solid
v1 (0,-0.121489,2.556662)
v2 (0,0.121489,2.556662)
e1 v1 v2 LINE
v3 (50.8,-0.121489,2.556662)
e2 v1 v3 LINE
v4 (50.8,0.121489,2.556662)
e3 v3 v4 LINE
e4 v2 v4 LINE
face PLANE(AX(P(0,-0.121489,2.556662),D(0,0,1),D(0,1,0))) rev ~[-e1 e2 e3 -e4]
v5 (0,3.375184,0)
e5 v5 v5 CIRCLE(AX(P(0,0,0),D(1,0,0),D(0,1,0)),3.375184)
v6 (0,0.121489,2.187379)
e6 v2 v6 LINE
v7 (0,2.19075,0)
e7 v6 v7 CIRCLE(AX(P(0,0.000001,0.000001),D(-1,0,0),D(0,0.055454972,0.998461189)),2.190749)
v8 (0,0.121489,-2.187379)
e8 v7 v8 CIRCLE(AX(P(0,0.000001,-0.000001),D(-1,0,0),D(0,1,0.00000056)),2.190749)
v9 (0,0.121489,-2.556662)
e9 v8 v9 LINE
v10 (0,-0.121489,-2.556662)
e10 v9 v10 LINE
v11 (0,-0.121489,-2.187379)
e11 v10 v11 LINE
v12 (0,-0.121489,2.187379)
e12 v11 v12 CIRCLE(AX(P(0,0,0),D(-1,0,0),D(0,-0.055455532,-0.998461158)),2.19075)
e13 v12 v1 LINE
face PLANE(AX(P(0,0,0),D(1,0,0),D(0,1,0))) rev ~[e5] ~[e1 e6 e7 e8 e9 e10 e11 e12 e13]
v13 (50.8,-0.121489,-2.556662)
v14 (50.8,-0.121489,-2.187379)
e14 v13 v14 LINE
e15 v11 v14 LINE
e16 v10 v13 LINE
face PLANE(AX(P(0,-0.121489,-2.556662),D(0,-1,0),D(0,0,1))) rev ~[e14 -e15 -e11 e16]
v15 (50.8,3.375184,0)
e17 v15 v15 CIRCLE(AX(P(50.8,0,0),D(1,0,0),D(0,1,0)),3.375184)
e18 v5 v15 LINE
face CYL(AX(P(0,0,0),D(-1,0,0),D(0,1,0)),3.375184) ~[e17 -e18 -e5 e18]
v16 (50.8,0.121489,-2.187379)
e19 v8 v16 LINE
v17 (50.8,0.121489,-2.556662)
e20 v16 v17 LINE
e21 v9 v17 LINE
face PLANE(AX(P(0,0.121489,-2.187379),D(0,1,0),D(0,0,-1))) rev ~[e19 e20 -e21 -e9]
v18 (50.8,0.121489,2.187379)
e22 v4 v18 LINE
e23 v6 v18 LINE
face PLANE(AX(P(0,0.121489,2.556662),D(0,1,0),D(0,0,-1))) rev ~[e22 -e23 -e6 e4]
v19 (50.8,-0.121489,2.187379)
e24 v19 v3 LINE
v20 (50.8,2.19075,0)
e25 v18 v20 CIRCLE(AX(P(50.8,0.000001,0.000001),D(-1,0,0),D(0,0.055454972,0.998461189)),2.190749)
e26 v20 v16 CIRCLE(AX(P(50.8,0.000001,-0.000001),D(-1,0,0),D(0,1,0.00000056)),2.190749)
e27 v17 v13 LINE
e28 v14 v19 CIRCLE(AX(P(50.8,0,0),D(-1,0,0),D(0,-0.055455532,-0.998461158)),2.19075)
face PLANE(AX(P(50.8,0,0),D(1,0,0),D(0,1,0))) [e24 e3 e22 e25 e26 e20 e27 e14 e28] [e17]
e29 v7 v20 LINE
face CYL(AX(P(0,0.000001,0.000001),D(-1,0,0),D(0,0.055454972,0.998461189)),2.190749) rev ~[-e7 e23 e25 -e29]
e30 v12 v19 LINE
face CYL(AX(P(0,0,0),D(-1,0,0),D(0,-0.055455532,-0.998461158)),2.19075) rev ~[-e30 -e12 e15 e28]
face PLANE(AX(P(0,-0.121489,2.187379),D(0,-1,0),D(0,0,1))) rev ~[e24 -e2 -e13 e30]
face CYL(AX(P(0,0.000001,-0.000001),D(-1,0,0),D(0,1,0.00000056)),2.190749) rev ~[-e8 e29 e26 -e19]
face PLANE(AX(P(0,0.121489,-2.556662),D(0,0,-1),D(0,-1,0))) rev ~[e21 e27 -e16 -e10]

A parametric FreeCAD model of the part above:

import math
import FreeCAD as App
import Part
import Sketcher

V = App.Vector
Q = App.Units.Quantity

doc = App.newDocument("Part")
body = doc.addObject("PartDesign::Body", "Body")

sketch1 = body.newObject("Sketcher::SketchObject", "Sketch")
sketch1.AttachmentSupport = (doc.getObject("YZ_Plane"), [""])
sketch1.MapMode = "FlatFace"
sketch1.addGeometry(Part.Circle(V(0, 0, 0), V(0, 0, 1), 3.38), False)
sketch1.addGeometry(Part.LineSegment(V(0.12, 2.56, 0), V(0.12, 2.19, 0)), False)
sketch1.addGeometry(Part.ArcOfCircle(Part.Circle(V(0, 0, 0), V(0, 0, 1), 2.19), math.radians(0), math.radians(87)), False)
sketch1.addGeometry(Part.ArcOfCircle(Part.Circle(V(0, 0, 0), V(0, 0, 1), 2.19), math.radians(-87), math.radians(0)), False)
sketch1.addGeometry(Part.LineSegment(V(0.12, -2.19, 0), V(0.12, -2.56, 0)), False)
sketch1.addGeometry(Part.LineSegment(V(0.12, -2.56, 0), V(-0.12, -2.56, 0)), False)
sketch1.addGeometry(Part.LineSegment(V(-0.12, -2.56, 0), V(-0.12, -2.19, 0)), False)
sketch1.addGeometry(Part.ArcOfCircle(Part.Circle(V(0, 0, 0), V(0, 0, 1), 2.19), math.radians(93), math.radians(267)), False)
sketch1.addGeometry(Part.LineSegment(V(-0.12, 2.19, 0), V(-0.12, 2.56, 0)), False)
sketch1.addGeometry(Part.LineSegment(V(-0.12, 2.56, 0), V(0.12, 2.56, 0)), False)
sketch1.addConstraint(Sketcher.Constraint("Coincident", 1, 2, 2, 2))
sketch1.addConstraint(Sketcher.Constraint("Tangent", 2, 1, 3, 2))
sketch1.addConstraint(Sketcher.Constraint("Coincident", 3, 1, 4, 1))
sketch1.addConstraint(Sketcher.Constraint("Coincident", 4, 2, 5, 1))
sketch1.addConstraint(Sketcher.Constraint("Coincident", 5, 2, 6, 1))
sketch1.addConstraint(Sketcher.Constraint("Coincident", 6, 2, 7, 2))
sketch1.addConstraint(Sketcher.Constraint("Coincident", 7, 1, 8, 1))
sketch1.addConstraint(Sketcher.Constraint("Coincident", 8, 2, 9, 1))
sketch1.addConstraint(Sketcher.Constraint("Coincident", 9, 2, 1, 1))
sketch1.addConstraint(Sketcher.Constraint("Vertical", 1))
sketch1.addConstraint(Sketcher.Constraint("Vertical", 4))
sketch1.addConstraint(Sketcher.Constraint("Horizontal", 5))
sketch1.addConstraint(Sketcher.Constraint("Vertical", 6))
sketch1.addConstraint(Sketcher.Constraint("Vertical", 8))
sketch1.addConstraint(Sketcher.Constraint("Horizontal", 9))
sketch1.addConstraint(Sketcher.Constraint("Coincident", 0, 3, -1, 1))
sketch1.addConstraint(Sketcher.Constraint("Coincident", 2, 3, -1, 1))
sketch1.addConstraint(Sketcher.Constraint("Coincident", 7, 3, -1, 1))
sketch1.addConstraint(Sketcher.Constraint("Equal", 2, 3))
sketch1.addConstraint(Sketcher.Constraint("Equal", 3, 7))
sketch1.addConstraint(Sketcher.Constraint("Symmetric", 4, 2, 8, 2, -1, 1))
sketch1.addConstraint(Sketcher.Constraint("PointOnObject", 2, 1, -1))
sketch1.addConstraint(Sketcher.Constraint("Horizontal", 3, 1, 6, 2))
sketch1.addConstraint(Sketcher.Constraint("Horizontal", 1, 2, 7, 1))
sketch1.addConstraint(Sketcher.Constraint("Radius", 2, 2.190749))
sketch1.addConstraint(Sketcher.Constraint("Diameter", 0, 6.750368))
sketch1.addConstraint(Sketcher.Constraint("DistanceX", 5, 2, 5, 1, 0.242978))
sketch1.addConstraint(Sketcher.Constraint("DistanceY", 1, 2, 1, 1, 0.369283))
pad1 = body.newObject("PartDesign::Pad", "Pad")
pad1.Profile = sketch1
pad1.Length = Q("2 in")

doc.recompute()
